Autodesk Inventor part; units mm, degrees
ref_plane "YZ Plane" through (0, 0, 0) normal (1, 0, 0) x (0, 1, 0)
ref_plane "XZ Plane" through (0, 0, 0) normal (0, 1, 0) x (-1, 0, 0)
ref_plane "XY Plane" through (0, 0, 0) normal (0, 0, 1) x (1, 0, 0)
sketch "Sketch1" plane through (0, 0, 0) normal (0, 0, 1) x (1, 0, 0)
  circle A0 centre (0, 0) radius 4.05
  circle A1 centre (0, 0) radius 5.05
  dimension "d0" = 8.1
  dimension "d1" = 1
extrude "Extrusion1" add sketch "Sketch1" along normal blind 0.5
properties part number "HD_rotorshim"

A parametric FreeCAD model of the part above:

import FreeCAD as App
import Part
import Sketcher

doc = App.newDocument("Part")
body = doc.addObject("PartDesign::Body", "Body")

sketch1 = body.newObject("Sketcher::SketchObject", "Sketch")
sketch1.AttachmentSupport = (doc.getObject("XY_Plane"), [""])
sketch1.MapMode = "FlatFace"
sketch1.addGeometry(Part.Circle(App.Vector(0, 0, 0), App.Vector(0, 0, 1), 5), False)
sketch1.addGeometry(Part.Circle(App.Vector(0, 0, 0), App.Vector(0, 0, 1), 4), False)
sketch1.addConstraint(Sketcher.Constraint("Coincident", 0, 3, -1, 1))
sketch1.addConstraint(Sketcher.Constraint("Coincident", 1, 3, -1, 1))
sketch1.addConstraint(Sketcher.Constraint("Diameter", 1, 8.1))
sketch1.addConstraint(Sketcher.Constraint("Diameter", 0, 10.1))
pad1 = body.newObject("PartDesign::Pad", "Pad")
pad1.Profile = sketch1
pad1.Length = 0.5

doc.recompute()
